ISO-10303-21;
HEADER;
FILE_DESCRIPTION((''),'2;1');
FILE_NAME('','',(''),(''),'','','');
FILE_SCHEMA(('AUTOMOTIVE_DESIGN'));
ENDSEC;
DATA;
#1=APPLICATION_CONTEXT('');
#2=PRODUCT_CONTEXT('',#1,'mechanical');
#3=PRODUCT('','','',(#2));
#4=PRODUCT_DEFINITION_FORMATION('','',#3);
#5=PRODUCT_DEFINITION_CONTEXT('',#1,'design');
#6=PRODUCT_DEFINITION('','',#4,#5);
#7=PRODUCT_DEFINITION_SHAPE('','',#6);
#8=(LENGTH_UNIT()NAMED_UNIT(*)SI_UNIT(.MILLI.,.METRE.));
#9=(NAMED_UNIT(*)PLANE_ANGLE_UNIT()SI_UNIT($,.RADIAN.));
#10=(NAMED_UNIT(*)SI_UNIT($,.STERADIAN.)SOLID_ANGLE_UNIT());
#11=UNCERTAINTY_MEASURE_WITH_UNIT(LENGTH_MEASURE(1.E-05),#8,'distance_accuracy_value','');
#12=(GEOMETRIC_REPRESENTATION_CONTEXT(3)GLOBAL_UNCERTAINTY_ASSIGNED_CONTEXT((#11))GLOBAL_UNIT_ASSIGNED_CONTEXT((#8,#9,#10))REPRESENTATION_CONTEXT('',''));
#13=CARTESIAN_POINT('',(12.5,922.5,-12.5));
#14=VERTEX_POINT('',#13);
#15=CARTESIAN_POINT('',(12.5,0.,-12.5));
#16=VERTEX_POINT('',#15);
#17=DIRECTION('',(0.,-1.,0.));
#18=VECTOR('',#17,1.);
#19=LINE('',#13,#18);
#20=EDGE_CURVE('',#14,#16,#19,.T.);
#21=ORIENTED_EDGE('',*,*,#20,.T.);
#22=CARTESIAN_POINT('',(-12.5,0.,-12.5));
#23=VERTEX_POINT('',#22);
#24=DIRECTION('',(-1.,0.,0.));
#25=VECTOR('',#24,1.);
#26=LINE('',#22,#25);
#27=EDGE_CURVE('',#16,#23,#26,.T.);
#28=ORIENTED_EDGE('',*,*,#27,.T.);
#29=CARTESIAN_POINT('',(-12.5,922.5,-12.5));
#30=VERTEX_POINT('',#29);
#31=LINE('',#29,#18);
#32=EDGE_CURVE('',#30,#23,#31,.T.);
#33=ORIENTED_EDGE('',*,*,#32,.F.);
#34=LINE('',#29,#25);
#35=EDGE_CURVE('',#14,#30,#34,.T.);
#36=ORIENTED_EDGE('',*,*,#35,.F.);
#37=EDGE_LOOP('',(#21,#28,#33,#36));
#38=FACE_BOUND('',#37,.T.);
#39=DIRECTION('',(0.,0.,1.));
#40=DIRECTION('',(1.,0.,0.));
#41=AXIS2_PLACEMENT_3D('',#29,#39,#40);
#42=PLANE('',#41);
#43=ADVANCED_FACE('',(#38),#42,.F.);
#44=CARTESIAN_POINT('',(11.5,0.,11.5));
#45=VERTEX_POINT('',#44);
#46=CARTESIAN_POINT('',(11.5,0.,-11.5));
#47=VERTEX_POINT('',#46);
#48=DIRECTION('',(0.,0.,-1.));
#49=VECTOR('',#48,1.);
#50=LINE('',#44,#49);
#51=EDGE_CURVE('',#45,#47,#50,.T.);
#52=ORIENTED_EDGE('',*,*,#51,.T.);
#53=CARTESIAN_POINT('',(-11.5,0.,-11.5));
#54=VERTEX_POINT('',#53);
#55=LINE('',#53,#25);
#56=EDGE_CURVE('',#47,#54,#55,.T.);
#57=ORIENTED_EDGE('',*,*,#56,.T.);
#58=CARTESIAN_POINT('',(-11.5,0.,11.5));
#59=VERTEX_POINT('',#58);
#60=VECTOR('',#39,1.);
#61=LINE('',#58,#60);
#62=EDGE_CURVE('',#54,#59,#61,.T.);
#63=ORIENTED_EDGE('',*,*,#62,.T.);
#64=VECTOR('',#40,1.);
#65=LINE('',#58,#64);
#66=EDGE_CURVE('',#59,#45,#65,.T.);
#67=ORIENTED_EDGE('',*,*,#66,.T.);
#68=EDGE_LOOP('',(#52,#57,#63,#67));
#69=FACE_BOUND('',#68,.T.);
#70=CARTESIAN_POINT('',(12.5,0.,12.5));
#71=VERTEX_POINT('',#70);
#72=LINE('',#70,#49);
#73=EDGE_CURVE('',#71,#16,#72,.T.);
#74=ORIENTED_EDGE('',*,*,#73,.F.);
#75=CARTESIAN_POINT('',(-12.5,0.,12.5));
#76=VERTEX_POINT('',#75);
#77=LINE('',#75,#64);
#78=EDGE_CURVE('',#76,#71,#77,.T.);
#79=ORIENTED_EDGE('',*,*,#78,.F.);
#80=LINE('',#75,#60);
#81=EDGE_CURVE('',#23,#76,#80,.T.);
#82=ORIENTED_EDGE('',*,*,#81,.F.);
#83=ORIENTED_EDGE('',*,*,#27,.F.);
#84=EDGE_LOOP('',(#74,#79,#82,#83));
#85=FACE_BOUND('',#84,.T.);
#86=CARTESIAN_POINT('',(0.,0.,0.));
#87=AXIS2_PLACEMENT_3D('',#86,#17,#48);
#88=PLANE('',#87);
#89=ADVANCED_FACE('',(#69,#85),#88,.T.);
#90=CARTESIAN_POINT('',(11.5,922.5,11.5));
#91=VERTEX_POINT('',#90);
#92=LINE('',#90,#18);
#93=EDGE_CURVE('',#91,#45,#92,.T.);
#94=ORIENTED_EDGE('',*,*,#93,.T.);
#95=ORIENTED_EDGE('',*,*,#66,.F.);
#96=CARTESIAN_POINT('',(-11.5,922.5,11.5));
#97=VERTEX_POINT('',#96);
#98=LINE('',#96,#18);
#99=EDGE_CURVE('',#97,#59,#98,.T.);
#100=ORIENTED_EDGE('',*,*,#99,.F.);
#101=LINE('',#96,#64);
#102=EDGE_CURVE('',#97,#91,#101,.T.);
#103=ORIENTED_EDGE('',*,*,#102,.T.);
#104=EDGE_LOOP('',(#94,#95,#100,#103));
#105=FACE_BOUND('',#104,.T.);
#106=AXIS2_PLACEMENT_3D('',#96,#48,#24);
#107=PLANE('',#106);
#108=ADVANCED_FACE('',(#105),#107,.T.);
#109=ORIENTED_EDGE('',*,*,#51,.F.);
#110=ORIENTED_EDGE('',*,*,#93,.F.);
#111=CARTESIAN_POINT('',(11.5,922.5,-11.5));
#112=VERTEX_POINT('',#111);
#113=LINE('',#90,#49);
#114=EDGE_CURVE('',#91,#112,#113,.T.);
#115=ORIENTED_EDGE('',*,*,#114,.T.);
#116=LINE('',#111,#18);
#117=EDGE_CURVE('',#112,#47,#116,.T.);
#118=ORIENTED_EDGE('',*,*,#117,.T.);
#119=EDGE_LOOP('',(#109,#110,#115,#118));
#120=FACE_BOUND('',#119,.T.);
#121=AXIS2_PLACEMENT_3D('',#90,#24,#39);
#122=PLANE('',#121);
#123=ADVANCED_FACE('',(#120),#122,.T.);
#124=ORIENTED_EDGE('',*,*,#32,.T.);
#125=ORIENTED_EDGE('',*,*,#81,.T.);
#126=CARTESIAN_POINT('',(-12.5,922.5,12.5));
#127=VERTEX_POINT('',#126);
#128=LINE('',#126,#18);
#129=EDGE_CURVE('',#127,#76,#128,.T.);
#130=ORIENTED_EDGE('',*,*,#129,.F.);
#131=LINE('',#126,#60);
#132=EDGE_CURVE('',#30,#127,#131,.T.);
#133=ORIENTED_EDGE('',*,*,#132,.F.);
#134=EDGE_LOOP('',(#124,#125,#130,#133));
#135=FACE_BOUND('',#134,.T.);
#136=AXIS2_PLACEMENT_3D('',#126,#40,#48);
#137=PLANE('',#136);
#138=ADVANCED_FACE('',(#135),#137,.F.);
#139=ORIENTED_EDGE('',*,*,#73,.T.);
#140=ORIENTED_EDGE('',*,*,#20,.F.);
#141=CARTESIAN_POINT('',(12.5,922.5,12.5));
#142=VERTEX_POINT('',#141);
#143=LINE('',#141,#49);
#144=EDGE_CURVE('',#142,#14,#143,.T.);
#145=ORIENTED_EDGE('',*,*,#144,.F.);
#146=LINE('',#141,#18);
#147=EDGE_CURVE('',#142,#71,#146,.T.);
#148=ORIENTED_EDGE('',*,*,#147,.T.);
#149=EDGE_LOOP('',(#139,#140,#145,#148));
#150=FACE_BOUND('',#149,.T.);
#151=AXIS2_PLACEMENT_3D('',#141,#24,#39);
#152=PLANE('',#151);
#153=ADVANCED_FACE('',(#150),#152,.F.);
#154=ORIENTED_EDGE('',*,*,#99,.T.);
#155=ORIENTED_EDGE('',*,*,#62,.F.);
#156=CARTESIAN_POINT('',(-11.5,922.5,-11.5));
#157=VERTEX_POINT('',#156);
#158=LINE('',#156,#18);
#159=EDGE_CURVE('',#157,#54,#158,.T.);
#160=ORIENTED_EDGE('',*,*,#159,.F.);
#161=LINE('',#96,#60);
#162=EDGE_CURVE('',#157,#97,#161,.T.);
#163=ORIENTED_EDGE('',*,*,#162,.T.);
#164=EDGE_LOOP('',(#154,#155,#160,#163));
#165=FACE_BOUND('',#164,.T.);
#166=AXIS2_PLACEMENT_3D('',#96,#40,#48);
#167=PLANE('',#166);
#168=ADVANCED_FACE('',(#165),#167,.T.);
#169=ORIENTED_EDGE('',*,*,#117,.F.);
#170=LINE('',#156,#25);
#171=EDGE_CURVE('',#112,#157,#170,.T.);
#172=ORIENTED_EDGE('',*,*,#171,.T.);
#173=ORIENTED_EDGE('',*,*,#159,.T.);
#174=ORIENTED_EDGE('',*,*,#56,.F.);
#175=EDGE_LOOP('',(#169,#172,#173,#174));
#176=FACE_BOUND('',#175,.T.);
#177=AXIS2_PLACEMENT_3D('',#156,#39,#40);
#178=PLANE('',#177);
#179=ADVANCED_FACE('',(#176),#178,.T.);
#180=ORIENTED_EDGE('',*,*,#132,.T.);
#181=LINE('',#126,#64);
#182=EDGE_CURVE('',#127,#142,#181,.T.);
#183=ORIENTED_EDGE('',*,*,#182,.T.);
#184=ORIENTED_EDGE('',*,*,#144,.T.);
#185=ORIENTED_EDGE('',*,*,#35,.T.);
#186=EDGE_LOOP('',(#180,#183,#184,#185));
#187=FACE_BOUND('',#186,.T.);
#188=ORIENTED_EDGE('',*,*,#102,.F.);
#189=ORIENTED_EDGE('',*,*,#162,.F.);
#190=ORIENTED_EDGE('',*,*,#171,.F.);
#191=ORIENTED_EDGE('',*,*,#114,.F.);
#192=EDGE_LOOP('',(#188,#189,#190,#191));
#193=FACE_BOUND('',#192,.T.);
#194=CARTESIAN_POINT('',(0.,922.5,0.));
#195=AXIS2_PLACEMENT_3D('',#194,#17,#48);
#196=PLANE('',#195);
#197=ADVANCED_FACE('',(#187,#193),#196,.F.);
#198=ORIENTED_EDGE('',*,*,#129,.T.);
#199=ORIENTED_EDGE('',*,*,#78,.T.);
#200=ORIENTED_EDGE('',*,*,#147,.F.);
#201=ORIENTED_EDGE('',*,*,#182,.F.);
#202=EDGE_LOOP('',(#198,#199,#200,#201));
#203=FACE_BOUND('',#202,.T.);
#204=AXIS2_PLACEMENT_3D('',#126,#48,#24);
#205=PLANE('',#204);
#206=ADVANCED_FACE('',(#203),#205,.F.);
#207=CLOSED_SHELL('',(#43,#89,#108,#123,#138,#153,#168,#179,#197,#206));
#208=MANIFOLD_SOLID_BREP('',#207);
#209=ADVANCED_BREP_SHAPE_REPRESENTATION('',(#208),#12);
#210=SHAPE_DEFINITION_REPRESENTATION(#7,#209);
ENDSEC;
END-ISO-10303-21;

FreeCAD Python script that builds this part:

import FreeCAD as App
import Part
import Sketcher

V = App.Vector

doc = App.newDocument("Part")
body = doc.addObject("PartDesign::Body", "Body")

# Sketch on XZ plane
sketch1 = body.newObject("Sketcher::SketchObject", "Sketch")
sketch1.AttachmentSupport = (doc.getObject("XZ_Plane"), [""])
sketch1.MapMode = "FlatFace"
sketch1.addGeometry(Part.LineSegment(V(-12, -12, 0), V(-12, 12, 0)), False)
sketch1.addGeometry(Part.LineSegment(V(-12, 12, 0), V(12, 12, 0)), False)
sketch1.addGeometry(Part.LineSegment(V(12, 12, 0), V(12, -12, 0)), False)
sketch1.addGeometry(Part.LineSegment(V(12, -12, 0), V(-12, -12, 0)), False)
sketch1.addGeometry(Part.LineSegment(V(12, 12, 0), V(-12, 12, 0)), False)
sketch1.addGeometry(Part.LineSegment(V(-12, 12, 0), V(-12, -12, 0)), False)
sketch1.addGeometry(Part.LineSegment(V(-12, -12, 0), V(12, -12, 0)), False)
sketch1.addGeometry(Part.LineSegment(V(12, -12, 0), V(12, 12, 0)), False)
sketch1.addConstraint(Sketcher.Constraint("Coincident", 0, 2, 1, 1))
sketch1.addConstraint(Sketcher.Constraint("Coincident", 1, 2, 2, 1))
sketch1.addConstraint(Sketcher.Constraint("Coincident", 2, 2, 3, 1))
sketch1.addConstraint(Sketcher.Constraint("Coincident", 3, 2, 0, 1))
sketch1.addConstraint(Sketcher.Constraint("Coincident", 4, 2, 5, 1))
sketch1.addConstraint(Sketcher.Constraint("Coincident", 5, 2, 6, 1))
sketch1.addConstraint(Sketcher.Constraint("Coincident", 6, 2, 7, 1))
sketch1.addConstraint(Sketcher.Constraint("Coincident", 7, 2, 4, 1))
sketch1.addConstraint(Sketcher.Constraint("Vertical", 0))
sketch1.addConstraint(Sketcher.Constraint("Horizontal", 1))
sketch1.addConstraint(Sketcher.Constraint("Vertical", 2))
sketch1.addConstraint(Sketcher.Constraint("Horizontal", 3))
sketch1.addConstraint(Sketcher.Constraint("Horizontal", 4))
sketch1.addConstraint(Sketcher.Constraint("Vertical", 5))
sketch1.addConstraint(Sketcher.Constraint("Horizontal", 6))
sketch1.addConstraint(Sketcher.Constraint("Vertical", 7))
sketch1.addConstraint(Sketcher.Constraint("Symmetric", 0, 2, 2, 2, -1, 1))
sketch1.addConstraint(Sketcher.Constraint("Symmetric", 4, 2, 6, 2, -1, 1))
sketch1.addConstraint(Sketcher.Constraint("Equal", 3, 0))
sketch1.addConstraint(Sketcher.Constraint("Equal", 6, 5))
sketch1.addConstraint(Sketcher.Constraint("DistanceX", 1, 1, 1, 2, 25.0))
sketch1.addConstraint(Sketcher.Constraint("DistanceX", 4, 2, 4, 1, 23.0))
pad1 = body.newObject("PartDesign::Pad", "Pad")
pad1.Profile = sketch1
pad1.Length = 922.5
pad1.Reversed = True

doc.recompute()
